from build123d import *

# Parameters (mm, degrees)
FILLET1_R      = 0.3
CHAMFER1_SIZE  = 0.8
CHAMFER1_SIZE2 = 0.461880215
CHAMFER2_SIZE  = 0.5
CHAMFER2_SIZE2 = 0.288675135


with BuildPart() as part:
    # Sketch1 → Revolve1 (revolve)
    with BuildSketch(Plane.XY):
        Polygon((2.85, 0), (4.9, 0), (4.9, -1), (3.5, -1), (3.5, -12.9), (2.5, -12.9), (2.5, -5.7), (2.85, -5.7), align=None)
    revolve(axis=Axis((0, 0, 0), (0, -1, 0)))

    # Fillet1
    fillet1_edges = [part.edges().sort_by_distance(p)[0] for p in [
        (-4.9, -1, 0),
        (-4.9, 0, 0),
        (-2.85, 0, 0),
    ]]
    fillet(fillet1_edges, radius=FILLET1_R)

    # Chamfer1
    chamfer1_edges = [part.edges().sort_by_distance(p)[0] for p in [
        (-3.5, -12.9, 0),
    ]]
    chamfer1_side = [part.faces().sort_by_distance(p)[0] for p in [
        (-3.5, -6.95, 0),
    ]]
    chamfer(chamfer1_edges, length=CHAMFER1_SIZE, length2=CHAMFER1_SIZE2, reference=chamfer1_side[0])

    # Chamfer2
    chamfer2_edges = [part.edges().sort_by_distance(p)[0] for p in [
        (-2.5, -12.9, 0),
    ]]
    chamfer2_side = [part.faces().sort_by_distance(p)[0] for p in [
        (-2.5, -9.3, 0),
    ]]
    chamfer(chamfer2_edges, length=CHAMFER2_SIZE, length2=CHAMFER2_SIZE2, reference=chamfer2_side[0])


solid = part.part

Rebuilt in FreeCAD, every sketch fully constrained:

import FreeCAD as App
import Part
import Sketcher
Q = App.Units.Quantity


def edges_at(feature, points):
    """Names of the edges that pass closest to the given points."""
    edges = feature.Shape.Edges
    near = lambda p: min(range(len(edges)), key=lambda i: edges[i].distToShape(Part.Vertex(*p))[0])
    return sorted({f"Edge{near(p) + 1}" for p in points})

doc = App.newDocument("Part")
params = doc.addObject("Spreadsheet::Sheet", "Params")
for row, (alias, value) in enumerate([
    ("sketch1_width", "1 mm"),
    ("sketch1_width2", "1.4 mm"),
    ("sketch1_height", "5.7 mm"),
    ("sketch1_height2", "7.2 mm"),
    ("sketch1_width3", "2.05 mm"),
    ("revolution_angle", "360 deg"),
    ("fillet_radius", "0.3 mm"),
    ("chamfer_size", "0.8 mm"),
    ("chamfer_size2", "0.46188 mm"),
    ("chamfer2_size", "0.5 mm"),
    ("chamfer2_size2", "0.288675 mm"),
], start=1):
    params.set(f"A{row}", alias)
    params.set(f"B{row}", "=" + value)
    params.setAlias(f"B{row}", alias)

body = doc.addObject("PartDesign::Body", "Body")

# Sketch on XY plane
sketch1 = doc.addObject("Sketcher::SketchObject", "Sketch")
body.addObject(sketch1)
sketch1.AttachmentSupport = (doc.XY_Plane, [""])
sketch1.MapMode = "FlatFace"
sketch1.addGeometry([
    Part.LineSegment(App.Vector(4.9, 0, 0), App.Vector(2.85, 0, 0)),  # 0
    Part.LineSegment(App.Vector(2.85, 0, 0), App.Vector(2.85, -5.7, 0)),  # 1
    Part.LineSegment(App.Vector(2.85, -5.7, 0), App.Vector(2.5, -5.7, 0)),  # 2
    Part.LineSegment(App.Vector(2.5, -5.7, 0), App.Vector(2.5, -12.9, 0)),  # 3
    Part.LineSegment(App.Vector(2.5, -12.9, 0), App.Vector(3.5, -12.9, 0)),  # 4
    Part.LineSegment(App.Vector(3.5, -12.9, 0), App.Vector(3.5, -1, 0)),  # 5
    Part.LineSegment(App.Vector(3.5, -1, 0), App.Vector(4.9, -1, 0)),  # 6
    Part.LineSegment(App.Vector(4.9, -1, 0), App.Vector(4.9, 0, 0)),  # 7
], False)
sketch1.addConstraint([
    Sketcher.Constraint("Coincident", 0, 2, 1, 1),
    Sketcher.Constraint("Coincident", 1, 2, 2, 1),
    Sketcher.Constraint("Coincident", 2, 2, 3, 1),
    Sketcher.Constraint("Coincident", 3, 2, 4, 1),
    Sketcher.Constraint("Coincident", 4, 2, 5, 1),
    Sketcher.Constraint("Coincident", 5, 2, 6, 1),
    Sketcher.Constraint("Coincident", 6, 2, 7, 1),
    Sketcher.Constraint("Coincident", 7, 2, 0, 1),
    Sketcher.Constraint("Horizontal", 0),
    Sketcher.Constraint("Vertical", 1),
    Sketcher.Constraint("Horizontal", 2),
    Sketcher.Constraint("Vertical", 3),
    Sketcher.Constraint("Horizontal", 4),
    Sketcher.Constraint("Vertical", 5),
    Sketcher.Constraint("Horizontal", 6),
    Sketcher.Constraint("Vertical", 7),
    Sketcher.Constraint("PointOnObject", 0, 2, -1),
    Sketcher.Constraint("Equal", 4, 7),
    Sketcher.Constraint("DistanceX", 4, 1, 4, 2, Q("1 mm")),
    Sketcher.Constraint("DistanceX", 6, 1, 6, 2, Q("1.4 mm")),
    Sketcher.Constraint("DistanceY", 1, 2, 1, 1, Q("5.7 mm")),
    Sketcher.Constraint("DistanceY", 3, 2, 3, 1, Q("7.2 mm")),
    Sketcher.Constraint("DistanceX", 0, 2, 0, 1, Q("2.05 mm")),
    Sketcher.Constraint("DistanceX", -1, 1, 2, 2, Q("2.5 mm")),
])
sketch1.setExpression("Constraints[18]", "Params.sketch1_width")
sketch1.setExpression("Constraints[19]", "Params.sketch1_width2")
sketch1.setExpression("Constraints[20]", "Params.sketch1_height")
sketch1.setExpression("Constraints[21]", "Params.sketch1_height2")
sketch1.setExpression("Constraints[22]", "Params.sketch1_width3")
revolution = doc.addObject("PartDesign::Revolution", "Revolution")
body.addObject(revolution)
revolution.Profile = sketch1
revolution.ReferenceAxis = (sketch1, ["V_Axis"])
revolution.setExpression("Angle", "Params.revolution_angle")
doc.recompute()

fillet = doc.addObject("PartDesign::Fillet", "Fillet")
body.addObject(fillet)
fillet.Base = (revolution, edges_at(revolution, [(-4.9, -1, 0), (-4.9, 0, 0), (-2.85, 0, 0)]))
fillet.setExpression("Radius", "Params.fillet_radius")
doc.recompute()

chamfer = doc.addObject("PartDesign::Chamfer", "Chamfer")
body.addObject(chamfer)
chamfer.Base = (fillet, edges_at(fillet, [(-3.5, -12.9, 0)]))
chamfer.ChamferType = "Two distances"
chamfer.setExpression("Size", "Params.chamfer_size")
chamfer.setExpression("Size2", "Params.chamfer_size2")
doc.recompute()

chamfer2 = doc.addObject("PartDesign::Chamfer", "Chamfer001")
body.addObject(chamfer2)
chamfer2.Base = (chamfer, edges_at(chamfer, [(-2.5, -12.9, 0)]))
chamfer2.ChamferType = "Two distances"
chamfer2.setExpression("Size", "Params.chamfer2_size")
chamfer2.setExpression("Size2", "Params.chamfer2_size2")
chamfer2.FlipDirection = True

doc.recompute()
